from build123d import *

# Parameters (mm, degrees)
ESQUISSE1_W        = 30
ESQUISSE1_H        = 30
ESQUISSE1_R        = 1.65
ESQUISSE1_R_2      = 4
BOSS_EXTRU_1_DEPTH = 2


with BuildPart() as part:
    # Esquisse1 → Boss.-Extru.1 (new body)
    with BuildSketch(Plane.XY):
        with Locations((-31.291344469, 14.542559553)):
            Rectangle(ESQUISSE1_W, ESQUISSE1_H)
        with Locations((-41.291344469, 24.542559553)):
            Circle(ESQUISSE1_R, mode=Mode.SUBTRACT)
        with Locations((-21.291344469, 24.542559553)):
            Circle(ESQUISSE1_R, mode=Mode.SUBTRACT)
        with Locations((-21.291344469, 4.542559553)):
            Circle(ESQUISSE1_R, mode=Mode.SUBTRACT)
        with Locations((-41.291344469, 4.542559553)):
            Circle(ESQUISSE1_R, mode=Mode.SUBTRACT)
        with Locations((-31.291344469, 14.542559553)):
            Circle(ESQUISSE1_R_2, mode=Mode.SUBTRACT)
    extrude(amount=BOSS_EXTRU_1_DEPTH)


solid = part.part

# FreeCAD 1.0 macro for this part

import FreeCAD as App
import Part
import Sketcher
from FreeCAD import Vector


def add_polygon(sketch, points):
    """Adds a closed chain of lines whose ends are joined by coincident constraints."""
    first, n = sketch.GeometryCount, len(points)
    for a, b in zip(points, points[1:] + points[:1]):
        sketch.addGeometry(Part.LineSegment(App.Vector(*a, 0), App.Vector(*b, 0)), False)
    for i in range(n):
        sketch.addConstraint(Sketcher.Constraint("Coincident", first + i, 2, first + (i + 1) % n, 1))

doc = App.newDocument("Part")
body = doc.addObject("PartDesign::Body", "Body")

sketch1 = body.newObject("Sketcher::SketchObject", "Sketch")
sketch1.AttachmentSupport = (doc.getObject("XY_Plane"), [""])
sketch1.MapMode = "FlatFace"
add_polygon(sketch1, [(-46.3, 29.5), (-46.3, -0.5), (-16.3, -0.5), (-16.3, 29.5)])
sketch1.addGeometry(Part.Circle(Vector(-41.3, 4.5, 0), Vector(0, 0, 1), 1.6), False)
sketch1.addGeometry(Part.Circle(Vector(-21.3, 4.5, 0), Vector(0, 0, 1), 1.6), False)
sketch1.addGeometry(Part.Circle(Vector(-41.3, 24.5, 0), Vector(0, 0, 1), 1.6), False)
sketch1.addGeometry(Part.Circle(Vector(-31.3, 14.5, 0), Vector(0, 0, 1), 4), False)
sketch1.addGeometry(Part.Circle(Vector(-21.3, 24.5, 0), Vector(0, 0, 1), 1.6), False)
sketch1.addConstraint([
    Sketcher.Constraint("Vertical", 0),
    Sketcher.Constraint("Horizontal", 1),
    Sketcher.Constraint("Vertical", 2),
    Sketcher.Constraint("Horizontal", 3),
    Sketcher.Constraint("Equal", 4, 5),
    Sketcher.Constraint("Equal", 5, 6),
    Sketcher.Constraint("Equal", 6, 8),
    Sketcher.Constraint("Horizontal", 4, 3, 5, 3),
    Sketcher.Constraint("Horizontal", 6, 3, 8, 3),
    Sketcher.Constraint("Vertical", 4, 3, 6, 3),
    Sketcher.Constraint("Vertical", 5, 3, 8, 3),
    Sketcher.Constraint("Equal", 3, 0),
    Sketcher.Constraint("Diameter", 7, 8.0),
    Sketcher.Constraint("Diameter", 4, 3.3),
    Sketcher.Constraint("DistanceX", 1, 1, 1, 2, 30.0),
    Sketcher.Constraint("DistanceX", 4, 3, 5, 3, 20.0),
    Sketcher.Constraint("DistanceY", 4, 3, 6, 3, 20.0),
    Sketcher.Constraint("DistanceX", 7, 3, 5, 3, 10.0),
    Sketcher.Constraint("DistanceY", 5, 3, 7, 3, 10.0),
    Sketcher.Constraint("DistanceX", 0, 2, 4, 3, 5.0),
    Sketcher.Constraint("DistanceY", 0, 2, 4, 3, 5.0),
    Sketcher.Constraint("DistanceY", -1, 1, 4, 3, 4.54256),
    Sketcher.Constraint("DistanceX", 4, 3, -1, 1, 41.291344),
])
pad1 = body.newObject("PartDesign::Pad", "Pad")
pad1.Profile = sketch1
pad1.Length = 2

doc.recompute()
